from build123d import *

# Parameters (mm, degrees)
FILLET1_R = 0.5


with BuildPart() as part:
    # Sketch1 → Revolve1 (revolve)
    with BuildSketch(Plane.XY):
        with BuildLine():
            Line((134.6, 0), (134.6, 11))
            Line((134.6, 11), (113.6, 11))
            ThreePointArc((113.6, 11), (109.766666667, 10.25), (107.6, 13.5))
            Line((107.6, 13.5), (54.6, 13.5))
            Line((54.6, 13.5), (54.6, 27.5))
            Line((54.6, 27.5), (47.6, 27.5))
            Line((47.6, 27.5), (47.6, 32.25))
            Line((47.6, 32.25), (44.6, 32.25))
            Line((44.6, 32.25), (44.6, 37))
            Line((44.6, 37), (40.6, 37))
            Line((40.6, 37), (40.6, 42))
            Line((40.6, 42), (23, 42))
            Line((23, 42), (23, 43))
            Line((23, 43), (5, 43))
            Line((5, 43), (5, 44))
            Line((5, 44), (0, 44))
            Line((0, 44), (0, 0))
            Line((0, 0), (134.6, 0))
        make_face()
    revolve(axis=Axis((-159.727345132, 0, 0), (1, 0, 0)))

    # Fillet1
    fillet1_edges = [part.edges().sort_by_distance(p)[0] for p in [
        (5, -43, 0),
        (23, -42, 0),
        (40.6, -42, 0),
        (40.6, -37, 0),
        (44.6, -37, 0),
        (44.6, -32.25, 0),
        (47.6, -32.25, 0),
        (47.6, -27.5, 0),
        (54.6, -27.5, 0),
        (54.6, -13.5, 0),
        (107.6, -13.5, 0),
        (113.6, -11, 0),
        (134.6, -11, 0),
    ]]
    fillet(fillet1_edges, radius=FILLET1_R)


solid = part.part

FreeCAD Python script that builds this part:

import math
import FreeCAD as App
import Part
import Sketcher


def edges_at(feature, points):
    """Names of the edges that pass closest to the given points."""
    edges = feature.Shape.Edges
    near = lambda p: min(range(len(edges)), key=lambda i: edges[i].distToShape(Part.Vertex(*p))[0])
    return sorted({f"Edge{near(p) + 1}" for p in points})

doc = App.newDocument("Part")
params = doc.addObject("Spreadsheet::Sheet", "Params")
for row, (alias, value) in enumerate([
    ("sketch1_width", "21 mm"),
    ("sketch1_width2", "53 mm"),
    ("sketch1_width3", "7 mm"),
    ("sketch1_width4", "3 mm"),
    ("sketch1_width5", "4 mm"),
    ("revolution_angle", "360 deg"),
    ("fillet_radius", "0.5 mm"),
], start=1):
    params.set(f"A{row}", alias)
    params.set(f"B{row}", "=" + value)
    params.setAlias(f"B{row}", alias)

body = doc.addObject("PartDesign::Body", "Body")

# Sketch on XY plane
sketch1 = body.newObject("Sketcher::SketchObject", "Sketch")
sketch1.AttachmentSupport = (doc.getObject("XY_Plane"), [""])
sketch1.MapMode = "FlatFace"
sketch1.addGeometry(Part.LineSegment(App.Vector(134.6, 0, 0), App.Vector(134.6, 11, 0)), False)
sketch1.addGeometry(Part.LineSegment(App.Vector(134.6, 11, 0), App.Vector(113.6, 11, 0)), False)
sketch1.addGeometry(Part.ArcOfCircle(Part.Circle(App.Vector(111.1, 13.5, 0), App.Vector(0, 0, 1), 3.5), math.radians(180), math.radians(315)), False)
sketch1.addGeometry(Part.LineSegment(App.Vector(107.6, 13.5, 0), App.Vector(54.6, 13.5, 0)), False)
sketch1.addGeometry(Part.LineSegment(App.Vector(54.6, 13.5, 0), App.Vector(54.6, 27.5, 0)), False)
sketch1.addGeometry(Part.LineSegment(App.Vector(54.6, 27.5, 0), App.Vector(47.6, 27.5, 0)), False)
sketch1.addGeometry(Part.LineSegment(App.Vector(47.6, 27.5, 0), App.Vector(47.6, 32.2, 0)), False)
sketch1.addGeometry(Part.LineSegment(App.Vector(47.6, 32.2, 0), App.Vector(44.6, 32.2, 0)), False)
sketch1.addGeometry(Part.LineSegment(App.Vector(44.6, 32.2, 0), App.Vector(44.6, 37, 0)), False)
sketch1.addGeometry(Part.LineSegment(App.Vector(44.6, 37, 0), App.Vector(40.6, 37, 0)), False)
sketch1.addGeometry(Part.LineSegment(App.Vector(40.6, 37, 0), App.Vector(40.6, 42, 0)), False)
sketch1.addGeometry(Part.LineSegment(App.Vector(40.6, 42, 0), App.Vector(23, 42, 0)), False)
sketch1.addGeometry(Part.LineSegment(App.Vector(23, 42, 0), App.Vector(23, 43, 0)), False)
sketch1.addGeometry(Part.LineSegment(App.Vector(23, 43, 0), App.Vector(5, 43, 0)), False)
sketch1.addGeometry(Part.LineSegment(App.Vector(5, 43, 0), App.Vector(5, 44, 0)), False)
sketch1.addGeometry(Part.LineSegment(App.Vector(5, 44, 0), App.Vector(0, 44, 0)), False)
sketch1.addGeometry(Part.LineSegment(App.Vector(0, 44, 0), App.Vector(0, 0, 0)), False)
sketch1.addGeometry(Part.LineSegment(App.Vector(0, 0, 0), App.Vector(134.6, 0, 0)), False)
sketch1.addConstraint(Sketcher.Constraint("Coincident", 0, 2, 1, 1))
sketch1.addConstraint(Sketcher.Constraint("Coincident", 1, 2, 2, 2))
sketch1.addConstraint(Sketcher.Constraint("Coincident", 2, 1, 3, 1))
sketch1.addConstraint(Sketcher.Constraint("Coincident", 3, 2, 4, 1))
sketch1.addConstraint(Sketcher.Constraint("Coincident", 4, 2, 5, 1))
sketch1.addConstraint(Sketcher.Constraint("Coincident", 5, 2, 6, 1))
sketch1.addConstraint(Sketcher.Constraint("Coincident", 6, 2, 7, 1))
sketch1.addConstraint(Sketcher.Constraint("Coincident", 7, 2, 8, 1))
sketch1.addConstraint(Sketcher.Constraint("Coincident", 8, 2, 9, 1))
sketch1.addConstraint(Sketcher.Constraint("Coincident", 9, 2, 10, 1))
sketch1.addConstraint(Sketcher.Constraint("Coincident", 10, 2, 11, 1))
sketch1.addConstraint(Sketcher.Constraint("Coincident", 11, 2, 12, 1))
sketch1.addConstraint(Sketcher.Constraint("Coincident", 12, 2, 13, 1))
sketch1.addConstraint(Sketcher.Constraint("Coincident", 13, 2, 14, 1))
sketch1.addConstraint(Sketcher.Constraint("Coincident", 14, 2, 15, 1))
sketch1.addConstraint(Sketcher.Constraint("Coincident", 15, 2, 16, 1))
sketch1.addConstraint(Sketcher.Constraint("Coincident", 16, 2, 17, 1))
sketch1.addConstraint(Sketcher.Constraint("Coincident", 17, 2, 0, 1))
sketch1.addConstraint(Sketcher.Constraint("Vertical", 0))
sketch1.addConstraint(Sketcher.Constraint("Horizontal", 1))
sketch1.addConstraint(Sketcher.Constraint("Horizontal", 3))
sketch1.addConstraint(Sketcher.Constraint("Vertical", 4))
sketch1.addConstraint(Sketcher.Constraint("Horizontal", 5))
sketch1.addConstraint(Sketcher.Constraint("Vertical", 6))
sketch1.addConstraint(Sketcher.Constraint("Horizontal", 7))
sketch1.addConstraint(Sketcher.Constraint("Vertical", 8))
sketch1.addConstraint(Sketcher.Constraint("Horizontal", 9))
sketch1.addConstraint(Sketcher.Constraint("Vertical", 10))
sketch1.addConstraint(Sketcher.Constraint("Horizontal", 11))
sketch1.addConstraint(Sketcher.Constraint("Vertical", 12))
sketch1.addConstraint(Sketcher.Constraint("Horizontal", 13))
sketch1.addConstraint(Sketcher.Constraint("Vertical", 14))
sketch1.addConstraint(Sketcher.Constraint("Horizontal", 15))
sketch1.addConstraint(Sketcher.Constraint("Vertical", 16))
sketch1.addConstraint(Sketcher.Constraint("Horizontal", 17))
sketch1.addConstraint(Sketcher.Constraint("Coincident", 16, 2, -1, 1))
sketch1.addConstraint(Sketcher.Constraint("Equal", 6, 8))
sketch1.addConstraint(Sketcher.Constraint("Equal", 15, 10))
sketch1.addConstraint(Sketcher.Constraint("Equal", 12, 14))
sketch1.addConstraint(Sketcher.Constraint("DistanceX", 1, 2, 1, 1, 21.0))
sketch1.addConstraint(Sketcher.Constraint("DistanceX", 3, 2, 3, 1, 53.0))
sketch1.addConstraint(Sketcher.Constraint("DistanceX", 5, 2, 5, 1, 7.0))
sketch1.addConstraint(Sketcher.Constraint("DistanceX", 7, 2, 7, 1, 3.0))
sketch1.addConstraint(Sketcher.Constraint("DistanceX", 9, 2, 9, 1, 4.0))
sketch1.addConstraint(Sketcher.Constraint("DistanceX", 13, 2, 13, 1, 18.0))
sketch1.addConstraint(Sketcher.Constraint("DistanceX", 15, 2, 15, 1, 5.0))
sketch1.addConstraint(Sketcher.Constraint("DistanceY", 0, 1, 0, 2, 11.0))
sketch1.addConstraint(Sketcher.Constraint("DistanceY", 4, 1, 4, 2, 14.0))
sketch1.addConstraint(Sketcher.Constraint("DistanceY", 12, 1, 12, 2, 1.0))
sketch1.addConstraint(Sketcher.Constraint("DistanceY", 16, 2, 16, 1, 44.0))
sketch1.addConstraint(Sketcher.Constraint("DistanceX", 11, 2, 11, 1, 17.6))
sketch1.addConstraint(Sketcher.Constraint("DistanceX", 17, 1, 17, 2, 134.6))
sketch1.addConstraint(Sketcher.Constraint("DistanceY", 2, 3, 4, 2, 14.0))
sketch1.addConstraint(Sketcher.Constraint("DistanceY", 6, 1, 6, 2, 4.75))
sketch1.setExpression("Constraints[39]", "Params.sketch1_width")
sketch1.setExpression("Constraints[40]", "Params.sketch1_width2")
sketch1.setExpression("Constraints[41]", "Params.sketch1_width3")
sketch1.setExpression("Constraints[42]", "Params.sketch1_width4")
sketch1.setExpression("Constraints[43]", "Params.sketch1_width5")
revolution = body.newObject("PartDesign::Revolution", "Revolution")
revolution.Profile = sketch1
revolution.ReferenceAxis = (sketch1, ["H_Axis"])
revolution.setExpression("Angle", "Params.revolution_angle")
doc.recompute()

fillet = body.newObject("PartDesign::Fillet", "Fillet")
fillet.Base = (revolution, edges_at(revolution, [
    (5, -43, 0),
    (23, -42, 0),
    (40.6, -42, 0),
    (40.6, -37, 0),
    (44.6, -37, 0),
    (44.6, -32.25, 0),
    (47.6, -32.25, 0),
    (47.6, -27.5, 0),
    (54.6, -27.5, 0),
    (54.6, -13.5, 0),
    (107.6, -13.5, 0),
    (113.6, -11, 0),
    (134.6, -11, 0),
]))
fillet.setExpression("Radius", "Params.fillet_radius")

doc.recompute()
